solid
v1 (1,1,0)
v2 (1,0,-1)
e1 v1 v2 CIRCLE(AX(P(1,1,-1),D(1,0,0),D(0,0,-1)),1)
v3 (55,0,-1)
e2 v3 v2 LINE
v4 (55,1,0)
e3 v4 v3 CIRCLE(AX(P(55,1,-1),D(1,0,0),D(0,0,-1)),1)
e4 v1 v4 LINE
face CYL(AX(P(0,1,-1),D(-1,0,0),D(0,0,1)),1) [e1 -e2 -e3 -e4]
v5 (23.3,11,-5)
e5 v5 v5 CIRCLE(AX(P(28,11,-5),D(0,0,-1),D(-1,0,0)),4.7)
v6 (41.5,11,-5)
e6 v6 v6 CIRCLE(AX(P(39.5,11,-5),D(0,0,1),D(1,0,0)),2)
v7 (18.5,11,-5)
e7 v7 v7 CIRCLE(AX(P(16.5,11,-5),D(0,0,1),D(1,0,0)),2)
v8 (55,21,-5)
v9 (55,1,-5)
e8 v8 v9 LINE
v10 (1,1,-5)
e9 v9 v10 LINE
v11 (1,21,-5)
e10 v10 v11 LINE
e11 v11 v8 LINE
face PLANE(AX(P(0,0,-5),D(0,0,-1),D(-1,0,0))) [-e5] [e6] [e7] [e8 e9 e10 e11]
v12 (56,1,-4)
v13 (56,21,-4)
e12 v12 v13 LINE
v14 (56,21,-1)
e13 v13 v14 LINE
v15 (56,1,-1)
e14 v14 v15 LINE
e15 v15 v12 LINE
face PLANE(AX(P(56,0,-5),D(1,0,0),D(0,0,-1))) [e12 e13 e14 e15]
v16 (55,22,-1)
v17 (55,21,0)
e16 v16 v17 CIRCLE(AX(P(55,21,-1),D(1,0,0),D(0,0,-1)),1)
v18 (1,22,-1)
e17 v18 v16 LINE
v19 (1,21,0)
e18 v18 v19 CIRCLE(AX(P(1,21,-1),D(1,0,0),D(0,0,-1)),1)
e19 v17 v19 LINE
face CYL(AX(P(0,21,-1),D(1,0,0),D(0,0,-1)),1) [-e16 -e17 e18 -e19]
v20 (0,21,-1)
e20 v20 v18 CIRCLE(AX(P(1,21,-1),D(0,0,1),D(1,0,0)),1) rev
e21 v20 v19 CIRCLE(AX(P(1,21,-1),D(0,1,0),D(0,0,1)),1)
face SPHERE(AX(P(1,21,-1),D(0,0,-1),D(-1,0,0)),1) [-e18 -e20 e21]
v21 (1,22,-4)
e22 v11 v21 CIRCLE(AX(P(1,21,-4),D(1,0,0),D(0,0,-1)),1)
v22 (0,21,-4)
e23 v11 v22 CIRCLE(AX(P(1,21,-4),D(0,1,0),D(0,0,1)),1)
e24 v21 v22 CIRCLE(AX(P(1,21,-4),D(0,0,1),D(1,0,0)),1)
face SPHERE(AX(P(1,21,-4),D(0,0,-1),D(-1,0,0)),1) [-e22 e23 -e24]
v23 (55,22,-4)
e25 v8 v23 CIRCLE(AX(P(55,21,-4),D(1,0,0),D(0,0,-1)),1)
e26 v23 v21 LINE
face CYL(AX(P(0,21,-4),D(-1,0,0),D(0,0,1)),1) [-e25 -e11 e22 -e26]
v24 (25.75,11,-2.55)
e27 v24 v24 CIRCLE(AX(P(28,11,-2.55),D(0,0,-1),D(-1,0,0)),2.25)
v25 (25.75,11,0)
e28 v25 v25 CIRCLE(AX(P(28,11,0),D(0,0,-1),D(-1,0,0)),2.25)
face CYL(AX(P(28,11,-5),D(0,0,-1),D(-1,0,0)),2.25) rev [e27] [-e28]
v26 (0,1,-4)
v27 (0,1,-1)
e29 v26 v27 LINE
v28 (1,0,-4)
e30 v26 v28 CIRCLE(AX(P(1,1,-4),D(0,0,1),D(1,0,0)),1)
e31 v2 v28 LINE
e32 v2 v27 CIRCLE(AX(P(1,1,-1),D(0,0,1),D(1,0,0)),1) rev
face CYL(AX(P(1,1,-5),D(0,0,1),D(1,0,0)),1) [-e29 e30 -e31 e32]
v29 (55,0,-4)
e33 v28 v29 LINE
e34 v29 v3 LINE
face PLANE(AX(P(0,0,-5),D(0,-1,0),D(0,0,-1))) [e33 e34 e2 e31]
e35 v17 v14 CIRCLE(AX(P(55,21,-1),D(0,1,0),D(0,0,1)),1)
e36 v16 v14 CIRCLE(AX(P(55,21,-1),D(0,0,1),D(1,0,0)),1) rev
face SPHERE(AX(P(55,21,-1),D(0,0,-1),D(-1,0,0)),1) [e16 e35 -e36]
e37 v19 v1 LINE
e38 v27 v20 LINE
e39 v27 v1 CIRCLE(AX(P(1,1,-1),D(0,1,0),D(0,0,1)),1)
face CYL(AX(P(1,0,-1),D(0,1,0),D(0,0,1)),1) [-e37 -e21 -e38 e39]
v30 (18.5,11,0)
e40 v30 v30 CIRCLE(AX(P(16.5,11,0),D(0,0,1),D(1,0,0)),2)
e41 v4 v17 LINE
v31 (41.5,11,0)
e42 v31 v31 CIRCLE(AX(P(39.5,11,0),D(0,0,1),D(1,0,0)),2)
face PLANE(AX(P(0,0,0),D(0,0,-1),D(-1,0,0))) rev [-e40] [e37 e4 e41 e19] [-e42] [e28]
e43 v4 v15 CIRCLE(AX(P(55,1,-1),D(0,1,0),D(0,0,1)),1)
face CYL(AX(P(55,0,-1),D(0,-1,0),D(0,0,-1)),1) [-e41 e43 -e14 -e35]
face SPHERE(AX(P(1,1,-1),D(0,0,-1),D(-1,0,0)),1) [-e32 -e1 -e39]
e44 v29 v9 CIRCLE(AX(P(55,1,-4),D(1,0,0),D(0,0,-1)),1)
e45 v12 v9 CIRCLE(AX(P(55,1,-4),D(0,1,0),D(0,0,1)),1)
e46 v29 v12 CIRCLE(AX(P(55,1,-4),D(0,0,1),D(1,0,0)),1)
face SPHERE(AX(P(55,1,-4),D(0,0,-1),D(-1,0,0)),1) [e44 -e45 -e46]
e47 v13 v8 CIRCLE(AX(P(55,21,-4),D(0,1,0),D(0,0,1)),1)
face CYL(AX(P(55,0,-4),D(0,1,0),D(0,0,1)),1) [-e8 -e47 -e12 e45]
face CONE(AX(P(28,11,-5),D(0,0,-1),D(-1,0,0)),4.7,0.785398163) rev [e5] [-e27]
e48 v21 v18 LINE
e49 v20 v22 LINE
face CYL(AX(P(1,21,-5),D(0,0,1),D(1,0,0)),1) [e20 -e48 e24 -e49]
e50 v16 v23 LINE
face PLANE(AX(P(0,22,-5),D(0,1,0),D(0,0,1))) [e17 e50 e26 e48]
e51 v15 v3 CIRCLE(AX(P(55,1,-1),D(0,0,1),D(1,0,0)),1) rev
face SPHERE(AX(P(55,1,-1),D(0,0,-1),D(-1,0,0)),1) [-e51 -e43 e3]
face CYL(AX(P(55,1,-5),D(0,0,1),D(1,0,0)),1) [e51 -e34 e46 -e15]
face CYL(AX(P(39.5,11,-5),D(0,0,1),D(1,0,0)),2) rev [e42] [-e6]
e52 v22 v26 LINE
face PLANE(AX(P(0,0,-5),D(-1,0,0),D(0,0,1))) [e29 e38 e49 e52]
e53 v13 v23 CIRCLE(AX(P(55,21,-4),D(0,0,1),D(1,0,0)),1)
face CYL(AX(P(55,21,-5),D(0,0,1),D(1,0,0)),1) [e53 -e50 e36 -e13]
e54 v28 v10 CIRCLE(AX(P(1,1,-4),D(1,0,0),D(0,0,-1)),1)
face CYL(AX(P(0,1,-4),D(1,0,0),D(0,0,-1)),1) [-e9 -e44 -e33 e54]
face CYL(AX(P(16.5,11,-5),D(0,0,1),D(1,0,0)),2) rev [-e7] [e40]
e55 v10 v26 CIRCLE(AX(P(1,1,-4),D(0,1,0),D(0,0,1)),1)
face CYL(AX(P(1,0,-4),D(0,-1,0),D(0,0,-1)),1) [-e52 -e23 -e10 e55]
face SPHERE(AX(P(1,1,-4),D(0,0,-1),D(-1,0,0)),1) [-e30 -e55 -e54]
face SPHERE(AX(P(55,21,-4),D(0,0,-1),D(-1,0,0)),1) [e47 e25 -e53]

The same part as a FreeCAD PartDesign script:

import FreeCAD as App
import Part
import Sketcher

V = App.Vector
Q = App.Units.Quantity


def edges_at(feature, points):
    """Names of the edges that pass closest to the given points."""
    edges = feature.Shape.Edges
    near = lambda p: min(range(len(edges)), key=lambda i: edges[i].distToShape(Part.Vertex(*p))[0])
    return sorted({f"Edge{near(p) + 1}" for p in points})

doc = App.newDocument("Part")
body = doc.addObject("PartDesign::Body", "Body")

sketch1 = body.newObject("Sketcher::SketchObject", "Sketch")
sketch1.AttachmentSupport = (doc.getObject("XY_Plane"), [""])
sketch1.MapMode = "FlatFace"
sketch1.addGeometry(Part.LineSegment(V(0, 22, 0), V(0, 0, 0)), False)
sketch1.addGeometry(Part.LineSegment(V(0, 0, 0), V(56, 0, 0)), False)
sketch1.addGeometry(Part.LineSegment(V(56, 0, 0), V(56, 22, 0)), False)
sketch1.addGeometry(Part.LineSegment(V(56, 22, 0), V(0, 22, 0)), False)
sketch1.addConstraint(Sketcher.Constraint("Coincident", 0, 2, 1, 1))
sketch1.addConstraint(Sketcher.Constraint("Coincident", 1, 2, 2, 1))
sketch1.addConstraint(Sketcher.Constraint("Coincident", 2, 2, 3, 1))
sketch1.addConstraint(Sketcher.Constraint("Coincident", 3, 2, 0, 1))
sketch1.addConstraint(Sketcher.Constraint("Vertical", 0))
sketch1.addConstraint(Sketcher.Constraint("Horizontal", 1))
sketch1.addConstraint(Sketcher.Constraint("Vertical", 2))
sketch1.addConstraint(Sketcher.Constraint("Horizontal", 3))
sketch1.addConstraint(Sketcher.Constraint("Coincident", 0, 2, -1, 1))
sketch1.addConstraint(Sketcher.Constraint("DistanceX", 1, 1, 1, 2, Q("56 mm")))
sketch1.addConstraint(Sketcher.Constraint("DistanceY", 0, 2, 0, 1, Q("22 mm")))
pad1 = body.newObject("PartDesign::Pad", "Pad")
pad1.Profile = sketch1
pad1.Length = 5
pad1.Reversed = True

sketch2 = body.newObject("Sketcher::SketchObject", "Sketch001")
sketch2.AttachmentSupport = (doc.getObject("XY_Plane"), [""])
sketch2.MapMode = "FlatFace"
sketch2.addGeometry(Part.Circle(V(16.5, 11, 0), V(0, 0, 1), 2), False)
sketch2.addGeometry(Part.Circle(V(39.5, 11, 0), V(0, 0, 1), 2), False)
sketch2.addConstraint(Sketcher.Constraint("Equal", 0, 1))
sketch2.addConstraint(Sketcher.Constraint("Horizontal", 0, 3, 1, 3))
sketch2.addConstraint(Sketcher.Constraint("Diameter", 0, Q("4 mm")))
sketch2.addConstraint(Sketcher.Constraint("DistanceY", -1, 1, 0, 3, Q("11 mm")))
sketch2.addConstraint(Sketcher.Constraint("DistanceX", 0, 3, 1, 3, Q("23 mm")))
sketch2.addConstraint(Sketcher.Constraint("DistanceX", -1, 1, 0, 3, Q("16.5 mm")))
pocket1 = body.newObject("PartDesign::Pocket", "Pocket")
pocket1.Profile = sketch2
pocket1.Type = "ThroughAll"
doc.recompute()

fillet = body.newObject("PartDesign::Fillet", "Fillet")
fillet.Base = (pocket1, edges_at(pocket1, [
    (0, 22, -2.5),
    (56, 22, -2.5),
    (56, 0, -2.5),
    (0, 0, -2.5),
]))
fillet.Radius = 1
doc.recompute()

fillet2 = body.newObject("PartDesign::Fillet", "Fillet001")
fillet2.Base = (fillet, edges_at(fillet, [
    (0, 11, 0),
    (0, 11, -5),
    (28, 0, 0),
    (56, 11, 0),
    (28, 22, 0),
    (0.293, 21.707, 0),
    (55.707, 21.707, 0),
    (55.707, 0.293, 0),
    (0.293, 0.293, 0),
    (28, 0, -5),
    (28, 22, -5),
    (56, 11, -5),
    (0.293, 21.707, -5),
    (55.707, 21.707, -5),
    (55.707, 0.293, -5),
    (0.293, 0.293, -5),
]))
fillet2.Radius = 1

sketch3 = body.newObject("Sketcher::SketchObject", "Sketch002")
sketch3.AttachmentSupport = (doc.getObject("XY_Plane"), [""])
sketch3.MapMode = "FlatFace"
sketch3.AttachmentOffset = App.Placement(V(0, 0, -5), App.Rotation())
sketch3.addGeometry(Part.Circle(V(28, 11, 0), V(0, 0, 1), 2.2), False)
sketch3.addConstraint(Sketcher.Constraint("Diameter", 0, Q("4.5 mm")))
sketch3.addConstraint(Sketcher.Constraint("DistanceX", -1, 1, 0, 3, Q("28 mm")))
sketch3.addConstraint(Sketcher.Constraint("DistanceY", -1, 1, 0, 3, Q("11 mm")))
doc.recompute()
hole = body.newObject("PartDesign::Hole", "Hole")
hole.Profile = sketch3
hole.ThreadType = "None"
hole.Diameter = 4.5
hole.DepthType = "ThroughAll"
hole.HoleCutType = "Countersink"
hole.HoleCutDiameter = 9.4
hole.HoleCutCountersinkAngle = 90
hole.Reversed = True

doc.recompute()
